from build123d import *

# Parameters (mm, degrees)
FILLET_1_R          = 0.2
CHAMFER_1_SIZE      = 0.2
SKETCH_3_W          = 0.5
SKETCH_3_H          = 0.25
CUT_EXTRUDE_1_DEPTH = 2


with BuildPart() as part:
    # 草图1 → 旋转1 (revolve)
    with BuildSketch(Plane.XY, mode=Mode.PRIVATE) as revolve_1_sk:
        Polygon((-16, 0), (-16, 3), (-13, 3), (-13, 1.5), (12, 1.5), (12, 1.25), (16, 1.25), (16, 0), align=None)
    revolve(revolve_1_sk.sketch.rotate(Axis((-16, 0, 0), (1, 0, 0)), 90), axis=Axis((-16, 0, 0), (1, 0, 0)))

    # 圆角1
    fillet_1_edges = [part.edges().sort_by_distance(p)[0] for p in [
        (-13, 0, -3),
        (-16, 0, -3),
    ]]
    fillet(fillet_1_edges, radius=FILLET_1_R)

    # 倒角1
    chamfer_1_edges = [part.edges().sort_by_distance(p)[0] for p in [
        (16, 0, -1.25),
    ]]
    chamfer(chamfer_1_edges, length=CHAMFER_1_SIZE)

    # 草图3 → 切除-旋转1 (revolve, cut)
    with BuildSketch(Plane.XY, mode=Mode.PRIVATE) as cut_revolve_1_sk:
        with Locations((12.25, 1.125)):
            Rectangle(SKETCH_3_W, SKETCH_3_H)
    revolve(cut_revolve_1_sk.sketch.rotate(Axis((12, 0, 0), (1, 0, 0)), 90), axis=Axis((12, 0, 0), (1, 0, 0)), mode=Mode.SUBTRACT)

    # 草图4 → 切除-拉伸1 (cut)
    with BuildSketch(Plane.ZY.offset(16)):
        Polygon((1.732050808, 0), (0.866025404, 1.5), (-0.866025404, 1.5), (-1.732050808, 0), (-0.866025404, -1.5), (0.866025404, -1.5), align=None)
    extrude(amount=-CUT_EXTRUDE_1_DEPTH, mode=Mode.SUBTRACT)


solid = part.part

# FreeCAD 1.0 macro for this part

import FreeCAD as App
import Part
import Sketcher
Q = App.Units.Quantity


def edges_at(feature, points):
    """Names of the edges that pass closest to the given points."""
    edges = feature.Shape.Edges
    near = lambda p: min(range(len(edges)), key=lambda i: edges[i].distToShape(Part.Vertex(*p))[0])
    return sorted({f"Edge{near(p) + 1}" for p in points})


def add_polygon(sketch, points):
    """Adds a closed chain of lines whose ends are joined by coincident constraints."""
    first, n = sketch.GeometryCount, len(points)
    for a, b in zip(points, points[1:] + points[:1]):
        sketch.addGeometry(Part.LineSegment(App.Vector(*a, 0), App.Vector(*b, 0)), False)
    for i in range(n):
        sketch.addConstraint(Sketcher.Constraint("Coincident", first + i, 2, first + (i + 1) % n, 1))

doc = App.newDocument("Part")
body = doc.addObject("PartDesign::Body", "Body")

sketch1 = body.newObject("Sketcher::SketchObject", "Sketch")
sketch1.AttachmentSupport = (doc.getObject("XY_Plane"), [""])
sketch1.MapMode = "FlatFace"
add_polygon(sketch1, [(-16, 3), (-16, 0), (16, 0), (16, 1.25), (12, 1.25), (12, 1.5), (-13, 1.5), (-13, 3)])
sketch1.addConstraint([
    Sketcher.Constraint("Vertical", 0),
    Sketcher.Constraint("Horizontal", 1),
    Sketcher.Constraint("Vertical", 2),
    Sketcher.Constraint("Horizontal", 3),
    Sketcher.Constraint("Vertical", 4),
    Sketcher.Constraint("Horizontal", 5),
    Sketcher.Constraint("Vertical", 6),
    Sketcher.Constraint("Horizontal", 7),
    Sketcher.Constraint("Symmetric", 0, 2, 1, 2, -1, 1),
    Sketcher.Constraint("Equal", 7, 0),
    Sketcher.Constraint("DistanceX", 1, 1, 1, 2, Q("32 mm")),
    Sketcher.Constraint("DistanceX", 3, 2, 3, 1, Q("4 mm")),
    Sketcher.Constraint("DistanceX", 5, 2, 5, 1, Q("25 mm")),
    Sketcher.Constraint("DistanceY", 6, 1, 6, 2, Q("1.5 mm")),
    Sketcher.Constraint("DistanceY", 2, 1, 2, 2, Q("1.25 mm")),
])
revolution = body.newObject("PartDesign::Revolution", "Revolution")
revolution.Profile = sketch1
revolution.ReferenceAxis = (sketch1, ["H_Axis"])
revolution.Angle = 360
doc.recompute()

fillet = body.newObject("PartDesign::Fillet", "Fillet")
fillet.Base = (revolution, edges_at(revolution, [(-13, 0, -3), (-16, 0, -3)]))
fillet.Radius = 0.2
doc.recompute()

chamfer = body.newObject("PartDesign::Chamfer", "Chamfer")
chamfer.Base = (fillet, edges_at(fillet, [(16, 0, -1.25)]))
chamfer.Size = 0.2

sketch2 = body.newObject("Sketcher::SketchObject", "Sketch001")
sketch2.AttachmentSupport = (doc.getObject("XY_Plane"), [""])
sketch2.MapMode = "FlatFace"
add_polygon(sketch2, [(12, 1.25), (12, 1), (12.5, 1), (12.5, 1.25)])
sketch2.addConstraint([
    Sketcher.Constraint("Vertical", 0),
    Sketcher.Constraint("Horizontal", 1),
    Sketcher.Constraint("Vertical", 2),
    Sketcher.Constraint("Horizontal", 3),
    Sketcher.Constraint("DistanceX", 1, 1, 1, 2, Q("0.5 mm")),
    Sketcher.Constraint("DistanceX", -1, 1, 0, 2, Q("12 mm")),
    Sketcher.Constraint("DistanceY", -1, 1, 0, 2, Q("1 mm")),
    Sketcher.Constraint("DistanceY", 0, 2, 0, 1, Q("0.25 mm")),
])
groove = body.newObject("PartDesign::Groove", "Groove")
groove.Profile = sketch2
groove.ReferenceAxis = (sketch2, ["H_Axis"])
groove.Angle = 360

sketch3 = body.newObject("Sketcher::SketchObject", "Sketch002")
sketch3.AttachmentSupport = (doc.getObject("YZ_Plane"), [""])
sketch3.MapMode = "FlatFace"
sketch3.AttachmentOffset = App.Placement(App.Vector(0, 0, -16), App.Rotation())
add_polygon(sketch3, [(0, 1.7), (1.5, 0.9), (1.5, -0.9), (0, -1.7), (-1.5, -0.9), (-1.5, 0.9)])
sketch3.addConstraint([
    Sketcher.Constraint("Vertical", 1),
    Sketcher.Constraint("Vertical", 4),
    Sketcher.Constraint("Symmetric", 0, 2, 3, 2, -1, 1),
    Sketcher.Constraint("Symmetric", 2, 2, 5, 2, -1, 1),
    Sketcher.Constraint("PointOnObject", 2, 2, -2),
    Sketcher.Constraint("Parallel", 2, 5),
    Sketcher.Constraint("Horizontal", 1, 2, 3, 2),
    Sketcher.Constraint("Angle", 0, Q("-30 deg")),
    Sketcher.Constraint("DistanceX", 3, 2, 1, 2, Q("3 mm")),
    Sketcher.Constraint("DistanceY", 1, 2, 1, 1, Q("1.732051 mm")),
])
pocket1 = body.newObject("PartDesign::Pocket", "Pocket")
pocket1.Profile = sketch3
pocket1.Length = 2
pocket1.Reversed = True

doc.recompute()
